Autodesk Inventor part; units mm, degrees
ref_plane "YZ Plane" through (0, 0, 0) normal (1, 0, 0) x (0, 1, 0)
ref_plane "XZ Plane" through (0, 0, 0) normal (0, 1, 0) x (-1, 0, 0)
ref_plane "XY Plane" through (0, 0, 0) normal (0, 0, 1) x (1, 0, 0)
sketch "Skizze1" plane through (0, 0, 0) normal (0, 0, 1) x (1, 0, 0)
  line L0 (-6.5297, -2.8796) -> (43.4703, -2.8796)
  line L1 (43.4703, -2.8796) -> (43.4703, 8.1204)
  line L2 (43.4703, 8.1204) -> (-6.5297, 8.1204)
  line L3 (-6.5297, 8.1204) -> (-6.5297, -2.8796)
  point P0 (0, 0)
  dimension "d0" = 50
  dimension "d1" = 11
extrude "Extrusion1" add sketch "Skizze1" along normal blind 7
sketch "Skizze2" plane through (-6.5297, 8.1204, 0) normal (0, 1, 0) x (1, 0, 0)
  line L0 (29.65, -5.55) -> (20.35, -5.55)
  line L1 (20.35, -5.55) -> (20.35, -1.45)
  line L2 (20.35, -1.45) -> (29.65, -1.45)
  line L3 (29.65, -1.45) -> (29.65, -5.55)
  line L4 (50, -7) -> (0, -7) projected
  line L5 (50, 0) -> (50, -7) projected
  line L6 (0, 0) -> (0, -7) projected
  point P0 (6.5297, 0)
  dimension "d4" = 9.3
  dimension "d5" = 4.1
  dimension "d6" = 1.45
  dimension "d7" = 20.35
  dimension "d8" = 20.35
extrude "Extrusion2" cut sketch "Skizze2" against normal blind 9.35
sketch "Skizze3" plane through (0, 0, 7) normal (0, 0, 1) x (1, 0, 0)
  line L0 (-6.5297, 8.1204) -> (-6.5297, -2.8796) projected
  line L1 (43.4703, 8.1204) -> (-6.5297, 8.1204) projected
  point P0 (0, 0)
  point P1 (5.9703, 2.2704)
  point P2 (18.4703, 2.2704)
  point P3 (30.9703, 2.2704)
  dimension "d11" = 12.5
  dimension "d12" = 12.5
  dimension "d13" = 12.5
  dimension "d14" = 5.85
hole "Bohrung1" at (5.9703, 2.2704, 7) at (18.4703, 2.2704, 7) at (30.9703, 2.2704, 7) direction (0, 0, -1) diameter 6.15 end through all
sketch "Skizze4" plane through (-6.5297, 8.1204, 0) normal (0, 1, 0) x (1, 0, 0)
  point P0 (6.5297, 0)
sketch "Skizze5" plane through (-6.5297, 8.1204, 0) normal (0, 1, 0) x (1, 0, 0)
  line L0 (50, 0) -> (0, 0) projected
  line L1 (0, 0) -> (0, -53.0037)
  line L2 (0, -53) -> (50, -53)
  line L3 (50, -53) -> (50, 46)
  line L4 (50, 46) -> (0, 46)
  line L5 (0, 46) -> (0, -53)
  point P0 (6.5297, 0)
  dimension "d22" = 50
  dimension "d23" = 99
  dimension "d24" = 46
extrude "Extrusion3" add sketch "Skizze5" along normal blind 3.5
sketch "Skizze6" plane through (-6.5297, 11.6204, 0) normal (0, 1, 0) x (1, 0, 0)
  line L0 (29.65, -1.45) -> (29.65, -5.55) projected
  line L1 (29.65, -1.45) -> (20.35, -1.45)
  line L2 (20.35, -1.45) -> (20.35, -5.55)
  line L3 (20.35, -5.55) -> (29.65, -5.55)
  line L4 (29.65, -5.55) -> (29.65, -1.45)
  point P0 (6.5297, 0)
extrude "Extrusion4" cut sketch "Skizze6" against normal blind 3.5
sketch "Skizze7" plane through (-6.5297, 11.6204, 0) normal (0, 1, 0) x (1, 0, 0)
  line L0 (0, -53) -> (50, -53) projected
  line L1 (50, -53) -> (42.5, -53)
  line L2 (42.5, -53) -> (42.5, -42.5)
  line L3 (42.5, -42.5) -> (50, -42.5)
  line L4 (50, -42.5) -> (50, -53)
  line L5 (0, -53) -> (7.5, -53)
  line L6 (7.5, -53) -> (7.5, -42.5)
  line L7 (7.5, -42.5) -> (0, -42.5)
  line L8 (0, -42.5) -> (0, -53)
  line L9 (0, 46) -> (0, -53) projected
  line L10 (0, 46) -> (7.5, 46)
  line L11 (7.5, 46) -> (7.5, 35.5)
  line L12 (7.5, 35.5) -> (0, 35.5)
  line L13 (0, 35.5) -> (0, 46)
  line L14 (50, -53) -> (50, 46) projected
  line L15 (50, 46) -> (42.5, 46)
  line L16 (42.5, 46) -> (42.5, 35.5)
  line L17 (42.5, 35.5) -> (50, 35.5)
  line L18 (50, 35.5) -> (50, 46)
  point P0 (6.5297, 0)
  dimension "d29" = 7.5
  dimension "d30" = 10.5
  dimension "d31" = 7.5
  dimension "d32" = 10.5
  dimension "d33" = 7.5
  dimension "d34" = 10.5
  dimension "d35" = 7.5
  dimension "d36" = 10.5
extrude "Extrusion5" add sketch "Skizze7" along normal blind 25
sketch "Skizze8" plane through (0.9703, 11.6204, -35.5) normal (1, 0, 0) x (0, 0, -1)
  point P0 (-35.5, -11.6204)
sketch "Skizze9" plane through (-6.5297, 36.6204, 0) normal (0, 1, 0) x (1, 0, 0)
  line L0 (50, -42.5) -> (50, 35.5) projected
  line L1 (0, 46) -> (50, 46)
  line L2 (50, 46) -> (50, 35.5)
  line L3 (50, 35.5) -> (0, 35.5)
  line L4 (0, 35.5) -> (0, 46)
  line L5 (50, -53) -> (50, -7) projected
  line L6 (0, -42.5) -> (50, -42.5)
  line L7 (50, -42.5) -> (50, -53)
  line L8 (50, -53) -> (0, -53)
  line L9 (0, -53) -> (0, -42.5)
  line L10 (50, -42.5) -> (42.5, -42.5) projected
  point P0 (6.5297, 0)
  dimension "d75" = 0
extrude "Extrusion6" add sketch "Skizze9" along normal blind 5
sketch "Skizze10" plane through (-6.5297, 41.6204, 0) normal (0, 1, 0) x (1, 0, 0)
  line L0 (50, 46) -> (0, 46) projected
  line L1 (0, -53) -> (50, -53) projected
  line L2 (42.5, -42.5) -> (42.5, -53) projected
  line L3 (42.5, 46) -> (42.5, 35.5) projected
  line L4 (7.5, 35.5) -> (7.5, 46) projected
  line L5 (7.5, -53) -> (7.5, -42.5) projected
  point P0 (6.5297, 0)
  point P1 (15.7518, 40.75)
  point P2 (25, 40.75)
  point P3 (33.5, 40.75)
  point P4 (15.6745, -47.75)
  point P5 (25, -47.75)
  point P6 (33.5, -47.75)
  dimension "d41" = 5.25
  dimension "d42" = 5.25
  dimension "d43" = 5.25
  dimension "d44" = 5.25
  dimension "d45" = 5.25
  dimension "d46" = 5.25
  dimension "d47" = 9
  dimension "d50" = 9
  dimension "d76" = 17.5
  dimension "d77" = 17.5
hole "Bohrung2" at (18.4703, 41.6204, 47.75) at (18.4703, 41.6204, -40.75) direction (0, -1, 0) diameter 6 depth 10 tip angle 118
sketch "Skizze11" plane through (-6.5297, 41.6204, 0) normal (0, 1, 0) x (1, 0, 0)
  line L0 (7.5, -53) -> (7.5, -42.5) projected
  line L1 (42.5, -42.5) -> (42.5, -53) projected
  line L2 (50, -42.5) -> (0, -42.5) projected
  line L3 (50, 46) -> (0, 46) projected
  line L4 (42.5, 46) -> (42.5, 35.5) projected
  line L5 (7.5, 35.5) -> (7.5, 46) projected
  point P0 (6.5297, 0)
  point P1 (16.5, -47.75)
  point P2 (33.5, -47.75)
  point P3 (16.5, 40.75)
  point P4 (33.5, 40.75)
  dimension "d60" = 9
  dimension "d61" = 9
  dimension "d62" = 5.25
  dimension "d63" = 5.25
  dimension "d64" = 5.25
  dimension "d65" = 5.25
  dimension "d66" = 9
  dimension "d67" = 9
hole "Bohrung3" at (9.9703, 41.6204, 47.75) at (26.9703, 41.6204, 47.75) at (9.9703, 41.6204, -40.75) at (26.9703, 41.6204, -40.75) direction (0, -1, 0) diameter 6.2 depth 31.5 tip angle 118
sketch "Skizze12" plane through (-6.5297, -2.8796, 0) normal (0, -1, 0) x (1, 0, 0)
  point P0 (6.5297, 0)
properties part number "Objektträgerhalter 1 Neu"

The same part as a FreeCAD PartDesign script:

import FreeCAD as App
import Part
import Sketcher
Q = App.Units.Quantity


def add_polygon(sketch, points):
    """Adds a closed chain of lines whose ends are joined by coincident constraints."""
    first, n = sketch.GeometryCount, len(points)
    for a, b in zip(points, points[1:] + points[:1]):
        sketch.addGeometry(Part.LineSegment(App.Vector(*a, 0), App.Vector(*b, 0)), False)
    for i in range(n):
        sketch.addConstraint(Sketcher.Constraint("Coincident", first + i, 2, first + (i + 1) % n, 1))

doc = App.newDocument("Part")
body = doc.addObject("PartDesign::Body", "Body")

# Sketch on XY plane
sketch1 = doc.addObject("Sketcher::SketchObject", "Sketch")
body.addObject(sketch1)
sketch1.AttachmentSupport = (doc.XY_Plane, [""])
sketch1.MapMode = "FlatFace"
add_polygon(sketch1, [(-7, 8), (-7, -3), (43, -3), (43, 8)])  # lines 0-3
sketch1.addConstraint([
    Sketcher.Constraint("Vertical", 0),
    Sketcher.Constraint("Horizontal", 1),
    Sketcher.Constraint("Vertical", 2),
    Sketcher.Constraint("Horizontal", 3),
    Sketcher.Constraint("DistanceX", 1, 1, 1, 2, Q("50 mm")),
    Sketcher.Constraint("DistanceY", 0, 2, 0, 1, Q("11 mm")),
    Sketcher.Constraint("DistanceX", 0, 2, -1, 1, Q("6.5297 mm")),
    Sketcher.Constraint("DistanceY", 0, 2, -1, 1, Q("2.8796 mm")),
])
pad1 = doc.addObject("PartDesign::Pad", "Pad")
body.addObject(pad1)
pad1.Profile = sketch1
pad1.Length = 7

# Sketch on XZ plane
sketch2 = doc.addObject("Sketcher::SketchObject", "Sketch001")
body.addObject(sketch2)
sketch2.AttachmentSupport = (doc.XZ_Plane, [""])
sketch2.MapMode = "FlatFace"
sketch2.AttachmentOffset = App.Placement(App.Vector(0, 0, -8.1204), App.Rotation())
add_polygon(sketch2, [(13.8, 5.5), (23.1, 5.5), (23.1, 1.4), (13.8, 1.4)])  # lines 0-3
sketch2.addConstraint([
    Sketcher.Constraint("Horizontal", 0),
    Sketcher.Constraint("Vertical", 1),
    Sketcher.Constraint("Horizontal", 2),
    Sketcher.Constraint("Vertical", 3),
    Sketcher.Constraint("DistanceX", 0, 1, 0, 2, Q("9.3 mm")),
    Sketcher.Constraint("DistanceY", 1, 2, 1, 1, Q("4.1 mm")),
    Sketcher.Constraint("DistanceY", -1, 1, 1, 2, Q("1.45 mm")),
    Sketcher.Constraint("DistanceX", -1, 1, 0, 2, Q("23.1203 mm")),
])
pocket1 = doc.addObject("PartDesign::Pocket", "Pocket")
body.addObject(pocket1)
pocket1.Profile = sketch2
pocket1.Length = 9.35
pocket1.Reversed = True

# Sketch on XY plane
sketch3 = doc.addObject("Sketcher::SketchObject", "Sketch002")
body.addObject(sketch3)
sketch3.AttachmentSupport = (doc.XY_Plane, [""])
sketch3.MapMode = "FlatFace"
sketch3.AttachmentOffset = App.Placement(App.Vector(0, 0, 7), App.Rotation())
sketch3.addGeometry([
    Part.Circle(App.Vector(6, 2.3, 0), App.Vector(0, 0, 1), 3.1),
    Part.Circle(App.Vector(18.5, 2.3, 0), App.Vector(0, 0, 1), 3.1),
    Part.Circle(App.Vector(31, 2.3, 0), App.Vector(0, 0, 1), 3.1),
], False)
sketch3.addConstraint([
    Sketcher.Constraint("Equal", 0, 1),
    Sketcher.Constraint("Equal", 1, 2),
    Sketcher.Constraint("Horizontal", 0, 3, 1, 3),
    Sketcher.Constraint("Horizontal", 1, 3, 2, 3),
    Sketcher.Constraint("Diameter", 0, Q("6.15 mm")),
    Sketcher.Constraint("DistanceX", 0, 3, 2, 3, Q("25 mm")),
    Sketcher.Constraint("DistanceX", 0, 3, 1, 3, Q("12.5 mm")),
    Sketcher.Constraint("DistanceX", -1, 1, 0, 3, Q("5.9703 mm")),
    Sketcher.Constraint("DistanceY", -1, 1, 0, 3, Q("2.2704 mm")),
])
doc.recompute()
hole = doc.addObject("PartDesign::Hole", "Hole")
body.addObject(hole)
hole.Profile = sketch3
hole.ThreadType = "None"
hole.Diameter = 6.15
hole.DepthType = "ThroughAll"

# Sketch on XZ plane
sketch4 = doc.addObject("Sketcher::SketchObject", "Sketch003")
body.addObject(sketch4)
sketch4.AttachmentSupport = (doc.XZ_Plane, [""])
sketch4.MapMode = "FlatFace"
sketch4.AttachmentOffset = App.Placement(App.Vector(0, 0, -8.1204), App.Rotation())
add_polygon(sketch4, [(43, 53), (43, -46), (-7, -46), (-7, 53)])  # lines 0-3
sketch4.addConstraint([
    Sketcher.Constraint("Vertical", 0),
    Sketcher.Constraint("Horizontal", 1),
    Sketcher.Constraint("Vertical", 2),
    Sketcher.Constraint("Horizontal", 3),
    Sketcher.Constraint("DistanceX", 1, 2, 1, 1, Q("50 mm")),
    Sketcher.Constraint("DistanceY", 0, 2, 0, 1, Q("99 mm")),
    Sketcher.Constraint("DistanceY", 0, 2, -1, 1, Q("46 mm")),
    Sketcher.Constraint("DistanceX", -1, 1, 0, 2, Q("43.4703 mm")),
])
pad2 = doc.addObject("PartDesign::Pad", "Pad001")
body.addObject(pad2)
pad2.Profile = sketch4
pad2.Length = 3.5
pad2.Reversed = True

# Sketch on XZ plane
sketch5 = doc.addObject("Sketcher::SketchObject", "Sketch004")
body.addObject(sketch5)
sketch5.AttachmentSupport = (doc.XZ_Plane, [""])
sketch5.MapMode = "FlatFace"
sketch5.AttachmentOffset = App.Placement(App.Vector(0, 0, -11.6204), App.Rotation())
add_polygon(sketch5, [(23.1, 5.5), (23.1, 1.4), (13.8, 1.4), (13.8, 5.5)])  # lines 0-3
sketch5.addConstraint([
    Sketcher.Constraint("Vertical", 0),
    Sketcher.Constraint("Horizontal", 1),
    Sketcher.Constraint("Vertical", 2),
    Sketcher.Constraint("Horizontal", 3),
    Sketcher.Constraint("DistanceX", 1, 2, 1, 1, Q("9.3 mm")),
    Sketcher.Constraint("DistanceY", 0, 2, 0, 1, Q("4.1 mm")),
    Sketcher.Constraint("DistanceY", -1, 1, 0, 2, Q("1.45 mm")),
    Sketcher.Constraint("DistanceX", -1, 1, 0, 2, Q("23.1203 mm")),
])
pocket2 = doc.addObject("PartDesign::Pocket", "Pocket001")
body.addObject(pocket2)
pocket2.Profile = sketch5
pocket2.Length = 3.5
pocket2.Reversed = True

# Sketch on XZ plane
sketch6 = doc.addObject("Sketcher::SketchObject", "Sketch005")
body.addObject(sketch6)
sketch6.AttachmentSupport = (doc.XZ_Plane, [""])
sketch6.MapMode = "FlatFace"
sketch6.AttachmentOffset = App.Placement(App.Vector(0, 0, -11.6204), App.Rotation())
add_polygon(sketch6, [(-7, 42), (-7, 53), (1, 53), (1, 42)])  # lines 0-3
add_polygon(sketch6, [(-7, -46), (-7, -36), (1, -36), (1, -46)])  # lines 4-7
add_polygon(sketch6, [(36, -36), (43, -36), (43, -46), (36, -46)])  # lines 8-11
add_polygon(sketch6, [(36, 42), (36, 53), (43, 53), (43, 42)])  # lines 12-15
sketch6.addConstraint([
    Sketcher.Constraint("Vertical", 0),
    Sketcher.Constraint("Horizontal", 1),
    Sketcher.Constraint("Vertical", 2),
    Sketcher.Constraint("Horizontal", 3),
    Sketcher.Constraint("Vertical", 4),
    Sketcher.Constraint("Horizontal", 5),
    Sketcher.Constraint("Vertical", 6),
    Sketcher.Constraint("Horizontal", 7),
    Sketcher.Constraint("Horizontal", 8),
    Sketcher.Constraint("Vertical", 9),
    Sketcher.Constraint("Horizontal", 10),
    Sketcher.Constraint("Vertical", 11),
    Sketcher.Constraint("Vertical", 12),
    Sketcher.Constraint("Horizontal", 13),
    Sketcher.Constraint("Vertical", 14),
    Sketcher.Constraint("Horizontal", 15),
    Sketcher.Constraint("Horizontal", 5, 2, 8, 2),
    Sketcher.Constraint("Horizontal", 7, 2, 9, 2),
    Sketcher.Constraint("Horizontal", 1, 2, 12, 2),
    Sketcher.Constraint("Horizontal", 3, 2, 14, 2),
    Sketcher.Constraint("Vertical", 3, 2, 4, 2),
    Sketcher.Constraint("Vertical", 2, 2, 5, 2),
    Sketcher.Constraint("Vertical", 11, 2, 12, 2),
    Sketcher.Constraint("Vertical", 9, 2, 13, 2),
    Sketcher.Constraint("Equal", 7, 8),
    Sketcher.Constraint("Equal", 2, 4),
    Sketcher.Constraint("DistanceX", 1, 1, 1, 2, Q("7.5 mm")),
    Sketcher.Constraint("DistanceY", 0, 1, 0, 2, Q("10.5 mm")),
    Sketcher.Constraint("DistanceY", -1, 1, 0, 2, Q("53 mm")),
    Sketcher.Constraint("DistanceY", 6, 2, -1, 1, Q("46 mm")),
    Sketcher.Constraint("DistanceX", 4, 2, 8, 2, Q("50 mm")),
    Sketcher.Constraint("DistanceX", 0, 2, -1, 1, Q("6.5297 mm")),
])
pad3 = doc.addObject("PartDesign::Pad", "Pad002")
body.addObject(pad3)
pad3.Profile = sketch6
pad3.Length = 25
pad3.Reversed = True

# Sketch on XZ plane
sketch7 = doc.addObject("Sketcher::SketchObject", "Sketch006")
body.addObject(sketch7)
sketch7.AttachmentSupport = (doc.XZ_Plane, [""])
sketch7.MapMode = "FlatFace"
sketch7.AttachmentOffset = App.Placement(App.Vector(0, 0, -36.6204), App.Rotation())
add_polygon(sketch7, [(-7, -36), (43, -36), (43, -46), (-7, -46)])  # lines 0-3
add_polygon(sketch7, [(43, 53), (43, 42), (-7, 42), (-7, 53)])  # lines 4-7
sketch7.addConstraint([
    Sketcher.Constraint("Horizontal", 0),
    Sketcher.Constraint("Vertical", 1),
    Sketcher.Constraint("Horizontal", 2),
    Sketcher.Constraint("Vertical", 3),
    Sketcher.Constraint("Vertical", 4),
    Sketcher.Constraint("Horizontal", 5),
    Sketcher.Constraint("Vertical", 6),
    Sketcher.Constraint("Horizontal", 7),
    Sketcher.Constraint("Vertical", 1, 2, 4, 2),
    Sketcher.Constraint("Vertical", 3, 2, 5, 2),
    Sketcher.Constraint("Equal", 3, 4),
    Sketcher.Constraint("DistanceX", 0, 1, 0, 2, Q("50 mm")),
    Sketcher.Constraint("DistanceY", 1, 2, 1, 1, Q("10.5 mm")),
    Sketcher.Constraint("DistanceY", 1, 2, -1, 1, Q("46 mm")),
    Sketcher.Constraint("DistanceY", -1, 1, 6, 2, Q("53 mm")),
    Sketcher.Constraint("DistanceX", -1, 1, 0, 2, Q("43.4703 mm")),
])
pad4 = doc.addObject("PartDesign::Pad", "Pad003")
body.addObject(pad4)
pad4.Profile = sketch7
pad4.Length = 5
pad4.Reversed = True

# Sketch on XZ plane
sketch8 = doc.addObject("Sketcher::SketchObject", "Sketch007")
body.addObject(sketch8)
sketch8.AttachmentSupport = (doc.XZ_Plane, [""])
sketch8.MapMode = "FlatFace"
sketch8.AttachmentOffset = App.Placement(App.Vector(0, 0, -41.6204), App.Rotation())
sketch8.addGeometry([
    Part.Circle(App.Vector(18.5, 47.8, 0), App.Vector(0, 0, 1), 3),
    Part.Circle(App.Vector(18.5, -40.8, 0), App.Vector(0, 0, 1), 3),
], False)
sketch8.addConstraint([
    Sketcher.Constraint("Equal", 0, 1),
    Sketcher.Constraint("Vertical", 0, 3, 1, 3),
    Sketcher.Constraint("Diameter", 0, Q("6 mm")),
    Sketcher.Constraint("DistanceY", 1, 3, 0, 3, Q("88.5 mm")),
    Sketcher.Constraint("DistanceY", -1, 1, 0, 3, Q("47.75 mm")),
    Sketcher.Constraint("DistanceX", -1, 1, 0, 3, Q("18.4703 mm")),
])
doc.recompute()
hole2 = doc.addObject("PartDesign::Hole", "Hole001")
body.addObject(hole2)
hole2.Profile = sketch8
hole2.ThreadType = "None"
hole2.Diameter = 6
hole2.DepthType = "Dimension"
hole2.Depth = 10
hole2.DrillPoint = "Angled"
hole2.DrillPointAngle = 118
hole2.Reversed = True

# Sketch on XZ plane
sketch9 = doc.addObject("Sketcher::SketchObject", "Sketch008")
body.addObject(sketch9)
sketch9.AttachmentSupport = (doc.XZ_Plane, [""])
sketch9.MapMode = "FlatFace"
sketch9.AttachmentOffset = App.Placement(App.Vector(0, 0, -41.6204), App.Rotation())
sketch9.addGeometry([
    Part.Circle(App.Vector(10, 47.8, 0), App.Vector(0, 0, 1), 3.1),
    Part.Circle(App.Vector(27, 47.8, 0), App.Vector(0, 0, 1), 3.1),
    Part.Circle(App.Vector(10, -40.8, 0), App.Vector(0, 0, 1), 3.1),
    Part.Circle(App.Vector(27, -40.8, 0), App.Vector(0, 0, 1), 3.1),
], False)
sketch9.addConstraint([
    Sketcher.Constraint("Equal", 0, 1),
    Sketcher.Constraint("Equal", 1, 2),
    Sketcher.Constraint("Equal", 2, 3),
    Sketcher.Constraint("Horizontal", 0, 3, 1, 3),
    Sketcher.Constraint("Horizontal", 2, 3, 3, 3),
    Sketcher.Constraint("Vertical", 0, 3, 2, 3),
    Sketcher.Constraint("Vertical", 1, 3, 3, 3),
    Sketcher.Constraint("Diameter", 0, Q("6.2 mm")),
    Sketcher.Constraint("DistanceX", 0, 3, 1, 3, Q("17 mm")),
    Sketcher.Constraint("DistanceY", 2, 3, 0, 3, Q("88.5 mm")),
    Sketcher.Constraint("DistanceY", -1, 1, 0, 3, Q("47.75 mm")),
    Sketcher.Constraint("DistanceX", -1, 1, 0, 3, Q("9.9703 mm")),
])
doc.recompute()
hole3 = doc.addObject("PartDesign::Hole", "Hole002")
body.addObject(hole3)
hole3.Profile = sketch9
hole3.ThreadType = "None"
hole3.Diameter = 6.2
hole3.DepthType = "Dimension"
hole3.Depth = 31.5
hole3.DrillPoint = "Angled"
hole3.DrillPointAngle = 118
hole3.Reversed = True

doc.recompute()
